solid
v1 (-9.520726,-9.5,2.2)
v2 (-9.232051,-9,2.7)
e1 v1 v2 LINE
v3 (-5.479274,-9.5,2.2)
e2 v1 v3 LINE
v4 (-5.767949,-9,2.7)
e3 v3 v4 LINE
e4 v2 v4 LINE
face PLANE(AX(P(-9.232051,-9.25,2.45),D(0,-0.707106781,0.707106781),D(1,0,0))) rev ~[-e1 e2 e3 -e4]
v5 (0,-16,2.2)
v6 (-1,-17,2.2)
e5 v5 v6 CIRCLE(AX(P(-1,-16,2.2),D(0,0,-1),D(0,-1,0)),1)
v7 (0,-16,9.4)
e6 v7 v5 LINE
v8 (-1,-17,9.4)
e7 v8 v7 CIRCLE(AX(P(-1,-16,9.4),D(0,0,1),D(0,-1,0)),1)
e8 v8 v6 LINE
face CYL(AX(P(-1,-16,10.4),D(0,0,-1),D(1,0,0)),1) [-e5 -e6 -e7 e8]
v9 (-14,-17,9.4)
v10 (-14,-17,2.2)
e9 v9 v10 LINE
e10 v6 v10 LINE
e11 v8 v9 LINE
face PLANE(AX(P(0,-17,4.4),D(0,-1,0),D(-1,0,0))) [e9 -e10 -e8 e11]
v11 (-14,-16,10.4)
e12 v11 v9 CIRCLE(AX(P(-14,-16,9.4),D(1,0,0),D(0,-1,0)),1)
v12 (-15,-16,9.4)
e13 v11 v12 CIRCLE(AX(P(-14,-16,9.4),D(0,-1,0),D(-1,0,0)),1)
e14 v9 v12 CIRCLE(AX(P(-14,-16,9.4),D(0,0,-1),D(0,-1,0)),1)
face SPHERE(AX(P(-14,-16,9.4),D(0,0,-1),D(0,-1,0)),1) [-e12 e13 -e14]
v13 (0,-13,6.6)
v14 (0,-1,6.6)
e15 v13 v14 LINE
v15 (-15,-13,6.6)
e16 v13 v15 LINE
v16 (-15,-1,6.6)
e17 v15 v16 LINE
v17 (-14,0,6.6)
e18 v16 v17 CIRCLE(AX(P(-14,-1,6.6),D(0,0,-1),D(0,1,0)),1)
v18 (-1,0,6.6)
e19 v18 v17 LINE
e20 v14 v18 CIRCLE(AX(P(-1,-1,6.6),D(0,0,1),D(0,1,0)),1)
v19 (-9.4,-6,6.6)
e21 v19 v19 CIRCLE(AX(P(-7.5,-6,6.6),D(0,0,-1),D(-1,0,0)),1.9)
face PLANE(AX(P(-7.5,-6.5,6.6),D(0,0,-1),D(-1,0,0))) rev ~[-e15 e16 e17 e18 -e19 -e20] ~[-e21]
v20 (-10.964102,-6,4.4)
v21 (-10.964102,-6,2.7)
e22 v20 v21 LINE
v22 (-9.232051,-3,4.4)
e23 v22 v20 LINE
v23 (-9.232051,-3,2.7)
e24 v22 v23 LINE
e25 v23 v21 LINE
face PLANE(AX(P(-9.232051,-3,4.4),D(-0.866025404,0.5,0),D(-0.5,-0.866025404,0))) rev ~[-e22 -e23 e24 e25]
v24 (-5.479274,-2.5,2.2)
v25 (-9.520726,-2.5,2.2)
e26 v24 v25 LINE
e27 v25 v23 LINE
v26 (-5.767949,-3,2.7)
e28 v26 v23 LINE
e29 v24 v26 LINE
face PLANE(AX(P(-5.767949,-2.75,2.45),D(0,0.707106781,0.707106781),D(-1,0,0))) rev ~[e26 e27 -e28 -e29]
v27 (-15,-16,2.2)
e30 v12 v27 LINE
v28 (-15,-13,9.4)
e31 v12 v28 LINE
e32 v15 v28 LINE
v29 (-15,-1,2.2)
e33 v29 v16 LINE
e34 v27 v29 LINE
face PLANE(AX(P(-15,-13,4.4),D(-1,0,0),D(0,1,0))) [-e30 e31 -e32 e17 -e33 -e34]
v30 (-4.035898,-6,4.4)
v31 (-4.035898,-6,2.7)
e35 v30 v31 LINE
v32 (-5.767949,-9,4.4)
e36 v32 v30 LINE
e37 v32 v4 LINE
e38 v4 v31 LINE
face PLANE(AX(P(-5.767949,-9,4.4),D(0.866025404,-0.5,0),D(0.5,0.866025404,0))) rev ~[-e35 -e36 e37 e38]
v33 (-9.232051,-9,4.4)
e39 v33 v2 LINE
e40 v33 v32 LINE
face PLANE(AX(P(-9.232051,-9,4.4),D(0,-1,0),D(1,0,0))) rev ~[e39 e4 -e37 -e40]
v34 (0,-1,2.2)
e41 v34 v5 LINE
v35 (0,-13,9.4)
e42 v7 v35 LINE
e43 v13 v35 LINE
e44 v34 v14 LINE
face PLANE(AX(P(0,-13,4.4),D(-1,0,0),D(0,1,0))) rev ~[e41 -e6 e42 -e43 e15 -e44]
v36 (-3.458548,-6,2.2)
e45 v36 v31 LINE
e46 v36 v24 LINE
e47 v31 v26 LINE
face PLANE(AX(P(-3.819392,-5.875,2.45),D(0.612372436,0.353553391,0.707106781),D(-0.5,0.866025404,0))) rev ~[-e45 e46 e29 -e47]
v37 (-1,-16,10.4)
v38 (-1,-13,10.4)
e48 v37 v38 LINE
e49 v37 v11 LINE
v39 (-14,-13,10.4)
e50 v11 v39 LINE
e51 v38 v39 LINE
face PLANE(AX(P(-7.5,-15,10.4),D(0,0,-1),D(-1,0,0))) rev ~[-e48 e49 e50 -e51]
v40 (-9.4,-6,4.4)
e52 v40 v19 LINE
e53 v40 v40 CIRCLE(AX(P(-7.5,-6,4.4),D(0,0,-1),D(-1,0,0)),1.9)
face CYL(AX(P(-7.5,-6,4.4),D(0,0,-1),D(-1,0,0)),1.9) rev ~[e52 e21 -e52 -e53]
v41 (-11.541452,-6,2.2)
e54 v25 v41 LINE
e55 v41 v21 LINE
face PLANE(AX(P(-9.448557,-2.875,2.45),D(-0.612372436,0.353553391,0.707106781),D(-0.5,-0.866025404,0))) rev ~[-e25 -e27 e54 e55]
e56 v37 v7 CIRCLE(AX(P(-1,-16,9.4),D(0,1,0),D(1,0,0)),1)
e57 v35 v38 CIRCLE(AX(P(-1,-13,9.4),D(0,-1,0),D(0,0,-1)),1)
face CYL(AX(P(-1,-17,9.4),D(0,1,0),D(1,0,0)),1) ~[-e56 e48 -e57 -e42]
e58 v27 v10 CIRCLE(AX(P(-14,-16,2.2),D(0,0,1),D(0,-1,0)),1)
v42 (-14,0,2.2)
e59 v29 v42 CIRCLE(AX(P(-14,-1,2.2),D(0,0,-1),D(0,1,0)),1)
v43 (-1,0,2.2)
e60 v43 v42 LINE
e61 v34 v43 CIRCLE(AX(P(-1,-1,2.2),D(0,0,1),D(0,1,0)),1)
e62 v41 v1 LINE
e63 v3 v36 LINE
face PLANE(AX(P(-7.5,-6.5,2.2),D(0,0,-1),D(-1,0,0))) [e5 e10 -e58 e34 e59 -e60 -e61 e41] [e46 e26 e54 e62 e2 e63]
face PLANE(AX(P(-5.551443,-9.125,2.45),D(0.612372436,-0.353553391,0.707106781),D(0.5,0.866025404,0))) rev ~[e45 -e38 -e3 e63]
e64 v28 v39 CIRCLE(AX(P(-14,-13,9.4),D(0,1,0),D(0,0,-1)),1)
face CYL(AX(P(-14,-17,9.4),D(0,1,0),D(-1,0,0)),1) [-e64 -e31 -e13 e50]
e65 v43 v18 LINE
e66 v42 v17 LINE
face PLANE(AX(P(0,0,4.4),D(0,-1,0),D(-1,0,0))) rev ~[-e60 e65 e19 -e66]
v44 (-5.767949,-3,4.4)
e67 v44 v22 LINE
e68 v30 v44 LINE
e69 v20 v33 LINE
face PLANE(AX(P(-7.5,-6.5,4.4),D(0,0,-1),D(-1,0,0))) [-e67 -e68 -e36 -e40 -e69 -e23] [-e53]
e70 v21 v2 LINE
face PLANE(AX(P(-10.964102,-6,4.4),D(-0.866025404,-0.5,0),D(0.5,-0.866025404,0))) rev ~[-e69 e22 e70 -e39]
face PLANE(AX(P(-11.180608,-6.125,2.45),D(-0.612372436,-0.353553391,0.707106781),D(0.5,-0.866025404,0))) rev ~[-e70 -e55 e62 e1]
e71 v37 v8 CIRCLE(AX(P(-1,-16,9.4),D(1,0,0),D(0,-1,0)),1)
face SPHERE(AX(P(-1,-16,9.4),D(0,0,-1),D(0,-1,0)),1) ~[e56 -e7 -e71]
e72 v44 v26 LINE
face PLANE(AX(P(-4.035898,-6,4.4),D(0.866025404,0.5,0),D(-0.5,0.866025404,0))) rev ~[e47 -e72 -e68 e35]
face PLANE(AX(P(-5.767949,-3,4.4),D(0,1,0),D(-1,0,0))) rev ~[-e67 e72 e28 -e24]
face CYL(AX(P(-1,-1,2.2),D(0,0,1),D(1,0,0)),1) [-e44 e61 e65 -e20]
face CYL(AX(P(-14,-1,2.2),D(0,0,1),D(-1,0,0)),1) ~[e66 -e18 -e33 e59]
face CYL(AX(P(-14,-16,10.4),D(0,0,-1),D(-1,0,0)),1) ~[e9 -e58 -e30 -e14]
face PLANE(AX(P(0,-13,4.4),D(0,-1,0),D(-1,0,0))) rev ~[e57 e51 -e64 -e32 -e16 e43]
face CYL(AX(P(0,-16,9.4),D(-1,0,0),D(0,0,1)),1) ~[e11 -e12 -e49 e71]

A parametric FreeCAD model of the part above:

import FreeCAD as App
import Part
import Sketcher
Q = App.Units.Quantity


def edges_at(feature, points):
    """Names of the edges that pass closest to the given points."""
    edges = feature.Shape.Edges
    near = lambda p: min(range(len(edges)), key=lambda i: edges[i].distToShape(Part.Vertex(*p))[0])
    return sorted({f"Edge{near(p) + 1}" for p in points})

doc = App.newDocument("Part")
body = doc.addObject("PartDesign::Body", "Body")

# Sketch on XY plane
sketch1 = body.newObject("Sketcher::SketchObject", "Sketch")
sketch1.AttachmentSupport = (doc.getObject("XY_Plane"), [""])
sketch1.MapMode = "FlatFace"
sketch1.addGeometry(Part.LineSegment(App.Vector(0, 0, 0), App.Vector(0, -17, 0)), False)
sketch1.addGeometry(Part.LineSegment(App.Vector(0, -17, 0), App.Vector(15, -17, 0)), False)
sketch1.addGeometry(Part.LineSegment(App.Vector(15, -17, 0), App.Vector(15, 0, 0)), False)
sketch1.addGeometry(Part.LineSegment(App.Vector(15, 0, 0), App.Vector(0, 0, 0)), False)
sketch1.addGeometry(Part.LineSegment(App.Vector(4, -6, 0), App.Vector(5.8, -3, 0)), False)
sketch1.addGeometry(Part.LineSegment(App.Vector(5.8, -3, 0), App.Vector(9.2, -3, 0)), False)
sketch1.addGeometry(Part.LineSegment(App.Vector(9.2, -3, 0), App.Vector(11, -6, 0)), False)
sketch1.addGeometry(Part.LineSegment(App.Vector(11, -6, 0), App.Vector(9.2, -9, 0)), False)
sketch1.addGeometry(Part.LineSegment(App.Vector(9.2, -9, 0), App.Vector(5.8, -9, 0)), False)
sketch1.addGeometry(Part.LineSegment(App.Vector(5.8, -9, 0), App.Vector(4, -6, 0)), False)
sketch1.addConstraint(Sketcher.Constraint("Coincident", 0, 2, 1, 1))
sketch1.addConstraint(Sketcher.Constraint("Coincident", 1, 2, 2, 1))
sketch1.addConstraint(Sketcher.Constraint("Coincident", 2, 2, 3, 1))
sketch1.addConstraint(Sketcher.Constraint("Coincident", 3, 2, 0, 1))
sketch1.addConstraint(Sketcher.Constraint("Coincident", 4, 2, 5, 1))
sketch1.addConstraint(Sketcher.Constraint("Coincident", 5, 2, 6, 1))
sketch1.addConstraint(Sketcher.Constraint("Coincident", 6, 2, 7, 1))
sketch1.addConstraint(Sketcher.Constraint("Coincident", 7, 2, 8, 1))
sketch1.addConstraint(Sketcher.Constraint("Coincident", 8, 2, 9, 1))
sketch1.addConstraint(Sketcher.Constraint("Coincident", 9, 2, 4, 1))
sketch1.addConstraint(Sketcher.Constraint("Vertical", 0))
sketch1.addConstraint(Sketcher.Constraint("Horizontal", 1))
sketch1.addConstraint(Sketcher.Constraint("Vertical", 2))
sketch1.addConstraint(Sketcher.Constraint("Horizontal", 3))
sketch1.addConstraint(Sketcher.Constraint("Horizontal", 5))
sketch1.addConstraint(Sketcher.Constraint("Horizontal", 8))
sketch1.addConstraint(Sketcher.Constraint("Coincident", 3, 2, -1, 1))
sketch1.addConstraint(Sketcher.Constraint("Parallel", 4, 7))
sketch1.addConstraint(Sketcher.Constraint("Parallel", 6, 9))
sketch1.addConstraint(Sketcher.Constraint("Horizontal", 6, 2, 9, 2))
sketch1.addConstraint(Sketcher.Constraint("Vertical", 5, 2, 7, 2))
sketch1.addConstraint(Sketcher.Constraint("Vertical", 4, 2, 8, 2))
sketch1.addConstraint(Sketcher.Constraint("DistanceX", 1, 1, 1, 2, Q("15 mm")))
sketch1.addConstraint(Sketcher.Constraint("DistanceY", 0, 2, 0, 1, Q("17 mm")))
sketch1.addConstraint(Sketcher.Constraint("Angle", 4, Q("60 deg")))
sketch1.addConstraint(Sketcher.Constraint("DistanceY", 4, 2, -1, 1, Q("3 mm")))
sketch1.addConstraint(Sketcher.Constraint("DistanceY", 6, 2, -1, 1, Q("6 mm")))
sketch1.addConstraint(Sketcher.Constraint("DistanceX", 5, 1, 5, 2, Q("3.464102 mm")))
sketch1.addConstraint(Sketcher.Constraint("DistanceX", -1, 1, 6, 2, Q("10.964102 mm")))
pad1 = body.newObject("PartDesign::Pad", "Pad")
pad1.Profile = sketch1
pad1.Length = 2.2

# Sketch on XY plane
sketch2 = body.newObject("Sketcher::SketchObject", "Sketch001")
sketch2.AttachmentSupport = (doc.getObject("XY_Plane"), [""])
sketch2.MapMode = "FlatFace"
sketch2.addGeometry(Part.LineSegment(App.Vector(0, -13, 0), App.Vector(0, -17, 0)), False)
sketch2.addGeometry(Part.LineSegment(App.Vector(0, -17, 0), App.Vector(15, -17, 0)), False)
sketch2.addGeometry(Part.LineSegment(App.Vector(15, -17, 0), App.Vector(15, -13, 0)), False)
sketch2.addGeometry(Part.LineSegment(App.Vector(15, -13, 0), App.Vector(0, -13, 0)), False)
sketch2.addConstraint(Sketcher.Constraint("Coincident", 0, 2, 1, 1))
sketch2.addConstraint(Sketcher.Constraint("Coincident", 1, 2, 2, 1))
sketch2.addConstraint(Sketcher.Constraint("Coincident", 2, 2, 3, 1))
sketch2.addConstraint(Sketcher.Constraint("Coincident", 3, 2, 0, 1))
sketch2.addConstraint(Sketcher.Constraint("Vertical", 0))
sketch2.addConstraint(Sketcher.Constraint("Horizontal", 1))
sketch2.addConstraint(Sketcher.Constraint("Vertical", 2))
sketch2.addConstraint(Sketcher.Constraint("Horizontal", 3))
sketch2.addConstraint(Sketcher.Constraint("PointOnObject", 0, 2, -2))
sketch2.addConstraint(Sketcher.Constraint("DistanceX", 1, 1, 1, 2, Q("15 mm")))
sketch2.addConstraint(Sketcher.Constraint("DistanceY", 0, 2, 0, 1, Q("4 mm")))
sketch2.addConstraint(Sketcher.Constraint("DistanceY", 0, 2, -1, 1, Q("17 mm")))
pad2 = body.newObject("PartDesign::Pad", "Pad001")
pad2.Profile = sketch2
pad2.Length = 6
pad2.Reversed = True

# Sketch on XY plane
sketch3 = body.newObject("Sketcher::SketchObject", "Sketch002")
sketch3.AttachmentSupport = (doc.getObject("XY_Plane"), [""])
sketch3.MapMode = "FlatFace"
sketch3.addGeometry(Part.LineSegment(App.Vector(0, 0, 0), App.Vector(0, -13, 0)), False)
sketch3.addGeometry(Part.LineSegment(App.Vector(0, -13, 0), App.Vector(15, -13, 0)), False)
sketch3.addGeometry(Part.LineSegment(App.Vector(15, -13, 0), App.Vector(15, 0, 0)), False)
sketch3.addGeometry(Part.LineSegment(App.Vector(15, 0, 0), App.Vector(0, 0, 0)), False)
sketch3.addGeometry(Part.Circle(App.Vector(7.5, -6, 0), App.Vector(0, 0, 1), 1.9), False)
sketch3.addConstraint(Sketcher.Constraint("Coincident", 0, 2, 1, 1))
sketch3.addConstraint(Sketcher.Constraint("Coincident", 1, 2, 2, 1))
sketch3.addConstraint(Sketcher.Constraint("Coincident", 2, 2, 3, 1))
sketch3.addConstraint(Sketcher.Constraint("Coincident", 3, 2, 0, 1))
sketch3.addConstraint(Sketcher.Constraint("Vertical", 0))
sketch3.addConstraint(Sketcher.Constraint("Horizontal", 1))
sketch3.addConstraint(Sketcher.Constraint("Vertical", 2))
sketch3.addConstraint(Sketcher.Constraint("Horizontal", 3))
sketch3.addConstraint(Sketcher.Constraint("Coincident", 3, 2, -1, 1))
sketch3.addConstraint(Sketcher.Constraint("Diameter", 4, Q("3.8 mm")))
sketch3.addConstraint(Sketcher.Constraint("DistanceX", 1, 1, 1, 2, Q("15 mm")))
sketch3.addConstraint(Sketcher.Constraint("DistanceY", 0, 2, 0, 1, Q("13 mm")))
sketch3.addConstraint(Sketcher.Constraint("DistanceY", 4, 3, -1, 1, Q("6 mm")))
sketch3.addConstraint(Sketcher.Constraint("DistanceX", -1, 1, 4, 3, Q("7.5 mm")))
pad3 = body.newObject("PartDesign::Pad", "Pad002")
pad3.Profile = sketch3
pad3.Length = 2.2
pad3.Reversed = True
doc.recompute()

fillet = body.newObject("PartDesign::Fillet", "Fillet")
fillet.Base = (pad3, edges_at(pad3, [
    (0, 0, 0),
    (15, 0, 0),
    (0, -17, -1.9),
    (15, -17, -1.9),
    (7.5, -17, -6),
    (15, -15, -6),
    (0, -15, -6),
]))
fillet.Radius = 1
body2 = doc.addObject("PartDesign::Body", "Body001")
doc.recompute()

body.Placement = App.Placement(App.Vector(0, 0, 4.4), App.Rotation(App.Vector(0, -1, 0), 180))
boolean = body2.newObject("PartDesign::Boolean", "Boolean")
boolean.Type = "Fuse"
boolean.addObjects([body])
doc.recompute()

chamfer = body2.newObject("PartDesign::Chamfer", "Chamfer")
chamfer.Base = (boolean, edges_at(boolean, [
    (-4.902, -4.5, 2.2),
    (-7.5, -3, 2.2),
    (-10.098, -4.5, 2.2),
    (-10.098, -7.5, 2.2),
    (-7.5, -9, 2.2),
    (-4.902, -7.5, 2.2),
]))
chamfer.Size = 0.5

doc.recompute()
